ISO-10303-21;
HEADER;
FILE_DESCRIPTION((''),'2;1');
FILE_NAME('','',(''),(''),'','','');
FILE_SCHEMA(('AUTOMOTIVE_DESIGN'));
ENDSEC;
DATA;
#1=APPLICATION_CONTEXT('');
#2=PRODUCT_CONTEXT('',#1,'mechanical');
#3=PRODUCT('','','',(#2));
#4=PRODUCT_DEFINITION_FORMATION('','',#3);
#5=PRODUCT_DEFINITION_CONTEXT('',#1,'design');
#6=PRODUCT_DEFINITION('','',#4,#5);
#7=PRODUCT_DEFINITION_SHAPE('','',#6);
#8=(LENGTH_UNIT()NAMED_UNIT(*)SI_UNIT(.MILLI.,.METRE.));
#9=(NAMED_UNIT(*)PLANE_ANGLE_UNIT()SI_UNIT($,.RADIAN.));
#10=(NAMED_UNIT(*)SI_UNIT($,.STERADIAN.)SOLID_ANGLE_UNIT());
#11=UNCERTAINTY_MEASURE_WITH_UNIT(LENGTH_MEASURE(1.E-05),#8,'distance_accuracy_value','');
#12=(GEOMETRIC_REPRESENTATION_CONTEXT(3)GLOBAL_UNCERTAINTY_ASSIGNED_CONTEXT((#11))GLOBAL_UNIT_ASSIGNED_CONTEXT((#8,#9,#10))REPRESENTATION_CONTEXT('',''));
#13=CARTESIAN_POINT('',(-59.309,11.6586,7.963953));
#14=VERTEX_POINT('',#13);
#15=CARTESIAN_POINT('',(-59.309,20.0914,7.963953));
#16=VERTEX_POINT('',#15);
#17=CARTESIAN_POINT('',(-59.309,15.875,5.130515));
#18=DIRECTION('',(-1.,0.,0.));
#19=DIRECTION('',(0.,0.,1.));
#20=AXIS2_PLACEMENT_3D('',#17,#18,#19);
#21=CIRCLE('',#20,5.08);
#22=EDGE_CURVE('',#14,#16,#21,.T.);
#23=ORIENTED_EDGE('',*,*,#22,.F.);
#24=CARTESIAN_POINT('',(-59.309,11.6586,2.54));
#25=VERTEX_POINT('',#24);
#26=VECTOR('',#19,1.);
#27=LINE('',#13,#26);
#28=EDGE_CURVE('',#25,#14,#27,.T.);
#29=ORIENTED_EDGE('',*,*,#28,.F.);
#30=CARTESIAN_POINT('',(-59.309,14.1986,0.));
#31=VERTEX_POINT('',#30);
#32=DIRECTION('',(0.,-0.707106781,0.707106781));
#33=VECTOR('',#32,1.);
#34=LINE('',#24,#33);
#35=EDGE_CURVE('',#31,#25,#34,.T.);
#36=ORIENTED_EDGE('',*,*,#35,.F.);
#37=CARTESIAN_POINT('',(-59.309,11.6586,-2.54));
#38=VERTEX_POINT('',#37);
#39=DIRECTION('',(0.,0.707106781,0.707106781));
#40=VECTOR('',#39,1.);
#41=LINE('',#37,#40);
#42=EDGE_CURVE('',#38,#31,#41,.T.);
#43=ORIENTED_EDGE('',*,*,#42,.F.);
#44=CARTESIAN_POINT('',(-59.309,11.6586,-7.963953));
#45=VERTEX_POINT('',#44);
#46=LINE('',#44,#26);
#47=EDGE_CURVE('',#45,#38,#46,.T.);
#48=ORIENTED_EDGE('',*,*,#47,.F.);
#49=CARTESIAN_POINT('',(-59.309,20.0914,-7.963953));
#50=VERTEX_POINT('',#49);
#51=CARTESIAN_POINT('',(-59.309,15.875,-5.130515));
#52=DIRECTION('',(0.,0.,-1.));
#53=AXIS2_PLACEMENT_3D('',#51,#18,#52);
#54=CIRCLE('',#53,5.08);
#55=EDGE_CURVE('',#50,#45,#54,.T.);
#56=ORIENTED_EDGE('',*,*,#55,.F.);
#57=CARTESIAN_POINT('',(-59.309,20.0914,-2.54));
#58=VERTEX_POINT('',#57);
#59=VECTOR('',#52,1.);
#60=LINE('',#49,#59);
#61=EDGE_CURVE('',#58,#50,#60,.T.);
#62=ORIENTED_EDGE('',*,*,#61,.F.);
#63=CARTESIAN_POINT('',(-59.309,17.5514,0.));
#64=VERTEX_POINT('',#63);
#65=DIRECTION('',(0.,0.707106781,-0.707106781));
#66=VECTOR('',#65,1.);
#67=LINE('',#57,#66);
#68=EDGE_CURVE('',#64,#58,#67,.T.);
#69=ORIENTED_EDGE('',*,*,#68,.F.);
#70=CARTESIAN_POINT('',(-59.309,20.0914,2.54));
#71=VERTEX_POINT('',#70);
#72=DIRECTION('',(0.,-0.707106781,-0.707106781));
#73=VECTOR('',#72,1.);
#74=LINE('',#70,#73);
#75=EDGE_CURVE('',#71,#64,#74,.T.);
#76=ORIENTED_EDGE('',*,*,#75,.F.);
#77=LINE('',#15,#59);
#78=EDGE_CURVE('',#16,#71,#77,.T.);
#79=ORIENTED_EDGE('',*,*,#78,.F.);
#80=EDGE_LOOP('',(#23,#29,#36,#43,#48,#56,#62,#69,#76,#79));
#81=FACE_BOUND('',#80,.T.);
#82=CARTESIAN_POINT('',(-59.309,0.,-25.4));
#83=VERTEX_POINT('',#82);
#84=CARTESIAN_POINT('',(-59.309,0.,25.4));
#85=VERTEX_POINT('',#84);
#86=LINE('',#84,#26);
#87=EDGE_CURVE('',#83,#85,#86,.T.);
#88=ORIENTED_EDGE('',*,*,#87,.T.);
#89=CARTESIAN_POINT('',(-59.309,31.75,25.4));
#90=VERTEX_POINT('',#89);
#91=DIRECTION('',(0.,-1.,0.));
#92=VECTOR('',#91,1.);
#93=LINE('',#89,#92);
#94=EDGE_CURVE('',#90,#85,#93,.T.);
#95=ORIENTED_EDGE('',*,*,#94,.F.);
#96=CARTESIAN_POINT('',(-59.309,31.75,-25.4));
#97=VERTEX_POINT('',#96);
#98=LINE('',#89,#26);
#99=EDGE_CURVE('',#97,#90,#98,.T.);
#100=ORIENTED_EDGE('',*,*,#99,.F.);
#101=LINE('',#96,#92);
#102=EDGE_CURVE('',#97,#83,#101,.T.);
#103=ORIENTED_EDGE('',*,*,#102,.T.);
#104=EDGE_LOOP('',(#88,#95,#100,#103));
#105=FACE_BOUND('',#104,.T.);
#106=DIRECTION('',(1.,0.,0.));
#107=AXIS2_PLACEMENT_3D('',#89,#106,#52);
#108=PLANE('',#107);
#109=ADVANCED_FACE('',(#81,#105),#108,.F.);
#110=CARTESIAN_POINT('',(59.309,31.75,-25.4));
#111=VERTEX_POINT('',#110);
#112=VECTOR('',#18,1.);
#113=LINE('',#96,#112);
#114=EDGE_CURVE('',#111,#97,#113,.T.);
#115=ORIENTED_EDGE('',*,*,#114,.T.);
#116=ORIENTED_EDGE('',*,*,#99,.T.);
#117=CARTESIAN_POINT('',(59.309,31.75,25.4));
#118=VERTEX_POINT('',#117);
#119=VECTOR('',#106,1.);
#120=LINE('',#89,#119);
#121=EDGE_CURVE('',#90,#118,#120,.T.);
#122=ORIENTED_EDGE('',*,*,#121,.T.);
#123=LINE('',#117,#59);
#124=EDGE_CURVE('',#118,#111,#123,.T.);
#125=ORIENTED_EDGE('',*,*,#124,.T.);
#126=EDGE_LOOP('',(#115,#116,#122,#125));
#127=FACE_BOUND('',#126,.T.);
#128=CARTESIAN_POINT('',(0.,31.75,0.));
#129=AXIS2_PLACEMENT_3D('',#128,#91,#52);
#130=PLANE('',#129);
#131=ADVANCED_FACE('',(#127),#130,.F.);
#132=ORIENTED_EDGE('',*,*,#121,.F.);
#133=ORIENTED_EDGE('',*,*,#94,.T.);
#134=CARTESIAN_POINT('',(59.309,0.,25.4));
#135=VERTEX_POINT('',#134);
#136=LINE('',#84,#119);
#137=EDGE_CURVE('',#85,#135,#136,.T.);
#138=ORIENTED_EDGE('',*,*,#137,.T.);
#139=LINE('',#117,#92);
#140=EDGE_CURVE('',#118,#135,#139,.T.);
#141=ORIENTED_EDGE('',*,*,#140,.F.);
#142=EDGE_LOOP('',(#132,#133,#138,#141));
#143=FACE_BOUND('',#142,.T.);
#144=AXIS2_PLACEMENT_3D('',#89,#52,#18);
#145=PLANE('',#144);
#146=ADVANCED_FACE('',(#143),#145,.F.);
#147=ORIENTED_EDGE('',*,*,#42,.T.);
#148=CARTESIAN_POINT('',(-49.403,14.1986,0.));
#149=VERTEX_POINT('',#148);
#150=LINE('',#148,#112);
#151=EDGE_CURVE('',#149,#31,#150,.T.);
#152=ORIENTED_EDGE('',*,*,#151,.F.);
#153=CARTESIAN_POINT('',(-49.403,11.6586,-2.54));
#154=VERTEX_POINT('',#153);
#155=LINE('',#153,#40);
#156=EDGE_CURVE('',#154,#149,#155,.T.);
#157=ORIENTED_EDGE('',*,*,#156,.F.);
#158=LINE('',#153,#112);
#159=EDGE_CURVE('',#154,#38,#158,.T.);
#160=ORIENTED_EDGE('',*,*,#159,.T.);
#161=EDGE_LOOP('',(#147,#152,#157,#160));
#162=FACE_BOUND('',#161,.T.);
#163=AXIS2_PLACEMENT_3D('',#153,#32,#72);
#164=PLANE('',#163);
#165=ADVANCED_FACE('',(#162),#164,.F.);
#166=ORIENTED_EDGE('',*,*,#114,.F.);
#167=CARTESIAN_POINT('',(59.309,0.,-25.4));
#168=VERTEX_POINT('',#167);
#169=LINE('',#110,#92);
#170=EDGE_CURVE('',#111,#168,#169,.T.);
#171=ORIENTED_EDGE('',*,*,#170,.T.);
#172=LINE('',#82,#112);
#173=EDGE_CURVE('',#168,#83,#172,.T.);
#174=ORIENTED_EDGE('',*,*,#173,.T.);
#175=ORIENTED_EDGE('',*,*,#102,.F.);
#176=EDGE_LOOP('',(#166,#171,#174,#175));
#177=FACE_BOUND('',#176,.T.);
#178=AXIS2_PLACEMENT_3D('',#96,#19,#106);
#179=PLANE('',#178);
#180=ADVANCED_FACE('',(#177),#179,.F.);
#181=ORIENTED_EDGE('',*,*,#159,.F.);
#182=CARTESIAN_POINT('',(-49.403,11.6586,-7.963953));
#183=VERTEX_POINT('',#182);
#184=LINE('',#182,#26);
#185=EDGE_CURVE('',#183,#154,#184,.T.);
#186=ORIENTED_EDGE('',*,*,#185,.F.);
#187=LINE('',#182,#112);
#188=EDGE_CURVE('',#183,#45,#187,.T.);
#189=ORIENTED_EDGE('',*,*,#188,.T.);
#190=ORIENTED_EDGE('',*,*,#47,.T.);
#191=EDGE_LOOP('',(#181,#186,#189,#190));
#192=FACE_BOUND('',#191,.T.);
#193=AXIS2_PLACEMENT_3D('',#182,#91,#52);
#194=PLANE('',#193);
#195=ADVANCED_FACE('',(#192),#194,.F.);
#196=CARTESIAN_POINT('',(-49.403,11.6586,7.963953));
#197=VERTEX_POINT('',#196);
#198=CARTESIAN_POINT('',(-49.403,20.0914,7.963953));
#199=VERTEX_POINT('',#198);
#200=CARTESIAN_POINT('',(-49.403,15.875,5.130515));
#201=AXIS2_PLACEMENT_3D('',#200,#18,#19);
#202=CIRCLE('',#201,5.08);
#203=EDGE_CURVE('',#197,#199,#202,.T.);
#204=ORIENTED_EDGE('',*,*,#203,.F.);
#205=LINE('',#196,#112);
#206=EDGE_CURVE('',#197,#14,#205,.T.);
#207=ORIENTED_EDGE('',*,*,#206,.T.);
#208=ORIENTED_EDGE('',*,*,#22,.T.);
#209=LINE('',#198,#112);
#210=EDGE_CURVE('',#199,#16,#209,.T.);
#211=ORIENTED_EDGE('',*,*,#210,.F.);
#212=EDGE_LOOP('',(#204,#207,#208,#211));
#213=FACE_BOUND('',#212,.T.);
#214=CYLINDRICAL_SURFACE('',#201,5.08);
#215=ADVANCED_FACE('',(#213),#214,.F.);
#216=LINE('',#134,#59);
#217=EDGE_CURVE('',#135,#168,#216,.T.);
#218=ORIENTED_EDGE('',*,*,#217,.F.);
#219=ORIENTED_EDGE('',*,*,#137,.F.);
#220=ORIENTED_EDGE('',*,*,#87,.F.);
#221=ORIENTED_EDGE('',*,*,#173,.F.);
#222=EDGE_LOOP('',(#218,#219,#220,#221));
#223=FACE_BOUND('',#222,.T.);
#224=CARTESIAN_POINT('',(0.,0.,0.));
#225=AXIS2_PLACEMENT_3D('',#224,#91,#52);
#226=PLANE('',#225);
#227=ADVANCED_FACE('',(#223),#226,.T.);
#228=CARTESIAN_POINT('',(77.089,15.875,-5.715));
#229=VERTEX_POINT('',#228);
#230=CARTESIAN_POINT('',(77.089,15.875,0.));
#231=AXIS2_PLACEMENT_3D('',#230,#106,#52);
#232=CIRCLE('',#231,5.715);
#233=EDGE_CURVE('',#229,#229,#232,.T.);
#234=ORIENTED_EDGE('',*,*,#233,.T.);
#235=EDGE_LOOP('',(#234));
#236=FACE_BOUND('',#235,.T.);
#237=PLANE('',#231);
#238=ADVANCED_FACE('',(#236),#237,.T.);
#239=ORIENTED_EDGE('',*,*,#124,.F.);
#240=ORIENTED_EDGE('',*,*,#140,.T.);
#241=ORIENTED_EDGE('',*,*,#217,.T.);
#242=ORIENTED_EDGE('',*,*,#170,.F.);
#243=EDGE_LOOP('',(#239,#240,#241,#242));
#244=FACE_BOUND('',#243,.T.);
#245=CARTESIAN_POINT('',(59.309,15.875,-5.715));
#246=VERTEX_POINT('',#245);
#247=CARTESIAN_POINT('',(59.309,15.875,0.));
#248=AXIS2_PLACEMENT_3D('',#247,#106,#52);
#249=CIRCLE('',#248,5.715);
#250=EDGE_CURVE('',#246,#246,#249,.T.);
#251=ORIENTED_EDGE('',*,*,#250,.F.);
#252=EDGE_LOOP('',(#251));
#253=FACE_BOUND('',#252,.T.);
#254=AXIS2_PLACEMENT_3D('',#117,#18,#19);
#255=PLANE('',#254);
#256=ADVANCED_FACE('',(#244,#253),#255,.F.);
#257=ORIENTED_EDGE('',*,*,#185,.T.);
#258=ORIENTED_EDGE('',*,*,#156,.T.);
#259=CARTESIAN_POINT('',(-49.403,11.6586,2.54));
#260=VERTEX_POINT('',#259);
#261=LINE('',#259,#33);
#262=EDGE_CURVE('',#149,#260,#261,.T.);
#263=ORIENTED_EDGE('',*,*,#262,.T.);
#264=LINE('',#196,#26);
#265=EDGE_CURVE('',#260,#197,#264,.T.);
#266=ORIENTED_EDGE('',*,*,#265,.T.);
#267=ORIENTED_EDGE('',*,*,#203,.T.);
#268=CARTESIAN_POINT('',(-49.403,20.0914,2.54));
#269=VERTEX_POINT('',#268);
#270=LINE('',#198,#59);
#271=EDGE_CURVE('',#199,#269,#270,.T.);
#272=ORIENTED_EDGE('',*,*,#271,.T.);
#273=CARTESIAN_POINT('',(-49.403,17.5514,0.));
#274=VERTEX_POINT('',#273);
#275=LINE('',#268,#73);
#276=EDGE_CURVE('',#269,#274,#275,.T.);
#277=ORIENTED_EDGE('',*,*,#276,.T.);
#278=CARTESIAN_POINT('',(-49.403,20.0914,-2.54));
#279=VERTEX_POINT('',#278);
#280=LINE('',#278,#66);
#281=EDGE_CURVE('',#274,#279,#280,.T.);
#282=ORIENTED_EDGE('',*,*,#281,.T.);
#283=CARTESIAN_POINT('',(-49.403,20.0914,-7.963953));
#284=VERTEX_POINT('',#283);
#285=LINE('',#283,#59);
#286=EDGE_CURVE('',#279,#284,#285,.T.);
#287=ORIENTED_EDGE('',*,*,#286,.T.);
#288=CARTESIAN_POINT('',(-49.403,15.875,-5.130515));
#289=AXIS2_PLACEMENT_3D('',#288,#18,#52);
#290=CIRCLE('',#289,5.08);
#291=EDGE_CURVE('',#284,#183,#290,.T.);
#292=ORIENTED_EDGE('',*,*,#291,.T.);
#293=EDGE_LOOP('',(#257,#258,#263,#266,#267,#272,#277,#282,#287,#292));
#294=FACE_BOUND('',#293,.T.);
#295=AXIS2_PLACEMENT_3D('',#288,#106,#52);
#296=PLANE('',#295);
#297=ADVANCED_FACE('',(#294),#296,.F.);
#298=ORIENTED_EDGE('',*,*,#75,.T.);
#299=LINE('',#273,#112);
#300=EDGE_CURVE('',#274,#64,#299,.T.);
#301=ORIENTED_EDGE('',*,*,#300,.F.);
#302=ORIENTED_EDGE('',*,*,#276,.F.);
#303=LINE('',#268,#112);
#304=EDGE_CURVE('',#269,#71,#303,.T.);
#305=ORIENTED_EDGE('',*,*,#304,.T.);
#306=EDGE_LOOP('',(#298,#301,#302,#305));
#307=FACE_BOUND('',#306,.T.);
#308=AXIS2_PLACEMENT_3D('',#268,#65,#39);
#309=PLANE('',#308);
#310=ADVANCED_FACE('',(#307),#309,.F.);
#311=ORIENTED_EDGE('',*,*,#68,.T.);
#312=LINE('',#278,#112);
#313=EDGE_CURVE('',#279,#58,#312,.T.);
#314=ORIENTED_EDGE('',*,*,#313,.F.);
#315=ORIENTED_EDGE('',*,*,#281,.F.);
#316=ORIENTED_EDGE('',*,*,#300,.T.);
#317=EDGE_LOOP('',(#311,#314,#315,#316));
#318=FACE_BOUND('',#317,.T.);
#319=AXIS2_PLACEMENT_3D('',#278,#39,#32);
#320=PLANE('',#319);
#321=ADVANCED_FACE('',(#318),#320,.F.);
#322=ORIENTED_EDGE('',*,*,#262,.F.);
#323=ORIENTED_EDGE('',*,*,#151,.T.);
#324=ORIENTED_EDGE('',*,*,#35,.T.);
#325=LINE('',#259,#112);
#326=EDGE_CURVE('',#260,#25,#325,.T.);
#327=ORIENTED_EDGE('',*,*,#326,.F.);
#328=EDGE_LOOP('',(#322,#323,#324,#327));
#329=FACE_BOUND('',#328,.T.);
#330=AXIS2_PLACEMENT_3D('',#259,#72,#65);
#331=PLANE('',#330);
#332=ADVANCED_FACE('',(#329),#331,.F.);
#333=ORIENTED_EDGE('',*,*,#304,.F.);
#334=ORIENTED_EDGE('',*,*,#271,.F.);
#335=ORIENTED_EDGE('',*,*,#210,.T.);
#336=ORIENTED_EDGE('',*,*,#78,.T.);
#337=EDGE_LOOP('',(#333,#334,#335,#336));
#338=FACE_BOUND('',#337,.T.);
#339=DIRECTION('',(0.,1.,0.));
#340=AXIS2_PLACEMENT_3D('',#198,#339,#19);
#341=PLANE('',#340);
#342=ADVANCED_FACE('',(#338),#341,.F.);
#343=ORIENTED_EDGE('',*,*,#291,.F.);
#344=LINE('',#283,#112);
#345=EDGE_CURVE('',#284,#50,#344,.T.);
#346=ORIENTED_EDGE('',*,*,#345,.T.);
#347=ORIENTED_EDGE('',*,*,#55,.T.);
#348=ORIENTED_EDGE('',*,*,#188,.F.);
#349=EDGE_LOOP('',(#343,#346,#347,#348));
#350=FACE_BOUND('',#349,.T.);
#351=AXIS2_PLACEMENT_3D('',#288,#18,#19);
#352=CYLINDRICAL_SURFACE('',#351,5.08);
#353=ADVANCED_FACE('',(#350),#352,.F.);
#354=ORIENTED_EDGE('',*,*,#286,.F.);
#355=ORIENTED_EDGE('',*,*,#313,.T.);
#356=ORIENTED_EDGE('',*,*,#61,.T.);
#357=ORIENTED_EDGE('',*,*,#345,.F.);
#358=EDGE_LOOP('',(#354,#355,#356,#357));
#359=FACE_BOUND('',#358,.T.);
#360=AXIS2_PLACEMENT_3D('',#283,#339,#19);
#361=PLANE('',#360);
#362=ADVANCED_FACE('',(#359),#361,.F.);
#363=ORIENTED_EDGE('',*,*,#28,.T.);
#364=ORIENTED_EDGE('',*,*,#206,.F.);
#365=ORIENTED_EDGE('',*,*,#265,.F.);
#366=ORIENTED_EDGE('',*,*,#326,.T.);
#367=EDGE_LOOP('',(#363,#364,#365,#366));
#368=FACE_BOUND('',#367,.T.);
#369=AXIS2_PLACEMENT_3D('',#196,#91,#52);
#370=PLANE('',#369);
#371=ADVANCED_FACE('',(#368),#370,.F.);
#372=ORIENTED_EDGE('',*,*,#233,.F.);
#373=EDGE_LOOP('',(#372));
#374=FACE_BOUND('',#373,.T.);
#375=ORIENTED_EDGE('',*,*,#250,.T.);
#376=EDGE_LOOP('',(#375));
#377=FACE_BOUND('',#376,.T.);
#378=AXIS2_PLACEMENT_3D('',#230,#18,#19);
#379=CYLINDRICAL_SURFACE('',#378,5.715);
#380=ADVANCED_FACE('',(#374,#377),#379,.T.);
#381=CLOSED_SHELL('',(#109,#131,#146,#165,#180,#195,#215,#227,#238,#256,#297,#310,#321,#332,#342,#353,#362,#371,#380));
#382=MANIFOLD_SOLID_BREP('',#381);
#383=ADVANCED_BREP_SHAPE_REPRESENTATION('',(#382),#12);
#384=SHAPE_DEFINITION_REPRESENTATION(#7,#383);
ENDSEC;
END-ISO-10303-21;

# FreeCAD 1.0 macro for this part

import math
import FreeCAD as App
import Part
import Sketcher
Q = App.Units.Quantity


def add_polygon(sketch, points):
    """Adds a closed chain of lines whose ends are joined by coincident constraints."""
    first, n = sketch.GeometryCount, len(points)
    for a, b in zip(points, points[1:] + points[:1]):
        sketch.addGeometry(Part.LineSegment(App.Vector(*a, 0), App.Vector(*b, 0)), False)
    for i in range(n):
        sketch.addConstraint(Sketcher.Constraint("Coincident", first + i, 2, first + (i + 1) % n, 1))

doc = App.newDocument("Part")
body = doc.addObject("PartDesign::Body", "Body")

sketch1 = doc.addObject("Sketcher::SketchObject", "Sketch")
body.addObject(sketch1)
sketch1.AttachmentSupport = (doc.XZ_Plane, [""])
sketch1.MapMode = "FlatFace"
add_polygon(sketch1, [(-59, -25), (-59, 25), (59, 25), (59, -25)])
sketch1.addConstraint(Sketcher.Constraint("Vertical", 0))
sketch1.addConstraint(Sketcher.Constraint("Horizontal", 1))
sketch1.addConstraint(Sketcher.Constraint("Vertical", 2))
sketch1.addConstraint(Sketcher.Constraint("Horizontal", 3))
sketch1.addConstraint(Sketcher.Constraint("Symmetric", 0, 2, 2, 2, -1, 1))
sketch1.addConstraint(Sketcher.Constraint("DistanceY", 0, 1, 0, 2, Q("2 in")))
sketch1.addConstraint(Sketcher.Constraint("DistanceX", 1, 1, 1, 2, Q("4.67 in")))
pad1 = doc.addObject("PartDesign::Pad", "Pad")
body.addObject(pad1)
pad1.Profile = sketch1
pad1.Length = Q("1.25 in")
pad1.Reversed = True

sketch2 = doc.addObject("Sketcher::SketchObject", "Sketch001")
body.addObject(sketch2)
sketch2.AttachmentSupport = (doc.YZ_Plane, [""])
sketch2.MapMode = "FlatFace"
sketch2.AttachmentOffset = App.Placement(App.Vector(0, 0, 2.335 * 25.4), App.Rotation())
sketch2.addGeometry(Part.Circle(App.Vector(16, 0, 0), App.Vector(0, 0, 1), 6), False)
sketch2.addConstraint(Sketcher.Constraint("PointOnObject", 0, 3, -1))
sketch2.addConstraint(Sketcher.Constraint("Diameter", 0, Q("0.45 in")))
sketch2.addConstraint(Sketcher.Constraint("DistanceX", -1, 1, 0, 3, Q("0.625 in")))
pad2 = doc.addObject("PartDesign::Pad", "Pad001")
body.addObject(pad2)
pad2.Profile = sketch2
pad2.Length = Q("0.7 in")

sketch3 = doc.addObject("Sketcher::SketchObject", "Sketch002")
body.addObject(sketch3)
sketch3.AttachmentSupport = (doc.YZ_Plane, [""])
sketch3.MapMode = "FlatFace"
sketch3.AttachmentOffset = App.Placement(App.Vector(0, 0, -2.335 * 25.4), App.Rotation())
sketch3.addGeometry(Part.LineSegment(App.Vector(11.7, -8, 0), App.Vector(11.7, -2.5, 0)), False)
sketch3.addGeometry(Part.LineSegment(App.Vector(11.7, -2.5, 0), App.Vector(14.2, 0, 0)), False)
sketch3.addGeometry(Part.LineSegment(App.Vector(14.2, 0, 0), App.Vector(11.7, 2.5, 0)), False)
sketch3.addGeometry(Part.LineSegment(App.Vector(11.7, 2.5, 0), App.Vector(11.7, 8, 0)), False)
sketch3.addGeometry(Part.ArcOfCircle(Part.Circle(App.Vector(15.9, 5.1, 0), App.Vector(0, 0, 1), 5.1), math.radians(34), math.radians(146)), False)
sketch3.addGeometry(Part.LineSegment(App.Vector(20.1, 8, 0), App.Vector(20.1, 2.5, 0)), False)
sketch3.addGeometry(Part.LineSegment(App.Vector(20.1, 2.5, 0), App.Vector(17.6, 0, 0)), False)
sketch3.addGeometry(Part.LineSegment(App.Vector(17.6, 0, 0), App.Vector(20.1, -2.5, 0)), False)
sketch3.addGeometry(Part.LineSegment(App.Vector(20.1, -2.5, 0), App.Vector(20.1, -8, 0)), False)
sketch3.addGeometry(Part.ArcOfCircle(Part.Circle(App.Vector(15.9, -5.1, 0), App.Vector(0, 0, 1), 5.1), math.radians(-146), math.radians(-34)), False)
sketch3.addConstraint(Sketcher.Constraint("Coincident", 0, 2, 1, 1))
sketch3.addConstraint(Sketcher.Constraint("Coincident", 1, 2, 2, 1))
sketch3.addConstraint(Sketcher.Constraint("Coincident", 2, 2, 3, 1))
sketch3.addConstraint(Sketcher.Constraint("Coincident", 3, 2, 4, 2))
sketch3.addConstraint(Sketcher.Constraint("Coincident", 4, 1, 5, 1))
sketch3.addConstraint(Sketcher.Constraint("Coincident", 5, 2, 6, 1))
sketch3.addConstraint(Sketcher.Constraint("Coincident", 6, 2, 7, 1))
sketch3.addConstraint(Sketcher.Constraint("Coincident", 7, 2, 8, 1))
sketch3.addConstraint(Sketcher.Constraint("Coincident", 8, 2, 9, 2))
sketch3.addConstraint(Sketcher.Constraint("Coincident", 9, 1, 0, 1))
sketch3.addConstraint(Sketcher.Constraint("Vertical", 0))
sketch3.addConstraint(Sketcher.Constraint("Vertical", 3))
sketch3.addConstraint(Sketcher.Constraint("Vertical", 5))
sketch3.addConstraint(Sketcher.Constraint("Vertical", 8))
sketch3.addConstraint(Sketcher.Constraint("Equal", 4, 9))
sketch3.addConstraint(Sketcher.Constraint("Symmetric", 4, 3, 9, 3, -1))
sketch3.addConstraint(Sketcher.Constraint("Symmetric", 0, 2, 2, 2, -1))
sketch3.addConstraint(Sketcher.Constraint("Symmetric", 5, 2, 7, 2, -1))
sketch3.addConstraint(Sketcher.Constraint("PointOnObject", 1, 2, -1))
sketch3.addConstraint(Sketcher.Constraint("PointOnObject", 6, 2, -1))
sketch3.addConstraint(Sketcher.Constraint("Perpendicular", 1, 2))
sketch3.addConstraint(Sketcher.Constraint("Perpendicular", 2, 6))
sketch3.addConstraint(Sketcher.Constraint("Horizontal", 3, 2, 4, 1))
sketch3.addConstraint(Sketcher.Constraint("Horizontal", 2, 2, 5, 2))
sketch3.addConstraint(Sketcher.Constraint("Radius", 4, Q("0.2 in")))
sketch3.addConstraint(Sketcher.Constraint("DistanceY", 0, 2, -1, 1, Q("0.1 in")))
sketch3.addConstraint(Sketcher.Constraint("DistanceX", -1, 1, 4, 3, Q("0.625 in")))
sketch3.addConstraint(Sketcher.Constraint("DistanceX", -1, 1, 0, 2, Q("0.459 in")))
sketch3.addConstraint(Sketcher.Constraint("DistanceY", 0, 1, 0, 2, 5.423953))
pocket1 = doc.addObject("PartDesign::Pocket", "Pocket")
body.addObject(pocket1)
pocket1.Profile = sketch3
pocket1.Length = Q("0.39 in")
pocket1.Reversed = True

doc.recompute()
